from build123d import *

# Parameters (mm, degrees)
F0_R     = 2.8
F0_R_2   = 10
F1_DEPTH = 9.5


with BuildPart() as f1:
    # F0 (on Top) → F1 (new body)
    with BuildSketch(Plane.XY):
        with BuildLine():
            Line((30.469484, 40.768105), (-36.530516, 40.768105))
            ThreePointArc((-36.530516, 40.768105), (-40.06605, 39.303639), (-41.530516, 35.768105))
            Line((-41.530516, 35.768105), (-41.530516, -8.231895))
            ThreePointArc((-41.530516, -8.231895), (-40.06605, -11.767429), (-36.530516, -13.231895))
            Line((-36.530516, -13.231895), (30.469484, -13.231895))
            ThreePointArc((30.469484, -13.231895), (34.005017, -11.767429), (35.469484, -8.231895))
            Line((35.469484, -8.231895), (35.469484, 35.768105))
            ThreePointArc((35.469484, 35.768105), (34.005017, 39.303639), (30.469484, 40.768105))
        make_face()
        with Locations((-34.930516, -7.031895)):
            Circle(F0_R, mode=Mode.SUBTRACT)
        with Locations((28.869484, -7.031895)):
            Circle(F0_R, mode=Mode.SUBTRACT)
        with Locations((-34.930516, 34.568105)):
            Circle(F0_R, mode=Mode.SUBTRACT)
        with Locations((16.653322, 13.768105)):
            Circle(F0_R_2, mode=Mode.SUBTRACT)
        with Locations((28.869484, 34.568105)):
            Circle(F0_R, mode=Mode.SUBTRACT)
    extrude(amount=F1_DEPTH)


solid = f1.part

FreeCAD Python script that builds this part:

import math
import FreeCAD as App
import Part
import Sketcher
from FreeCAD import Vector
Q = App.Units.Quantity

doc = App.newDocument("Part")
body = doc.addObject("PartDesign::Body", "Body")

# Sketch on XY plane
sketch1 = body.newObject("Sketcher::SketchObject", "Sketch")
sketch1.AttachmentSupport = (doc.getObject("XY_Plane"), [""])
sketch1.MapMode = "FlatFace"
sketch1.addGeometry([
    Part.LineSegment(Vector(30.5, 40.8, 0), Vector(-36.5, 40.8, 0)),  # 0
    Part.ArcOfCircle(Part.Circle(Vector(-36.5, 35.8, 0), Vector(0, 0, 1), 5), math.radians(90), math.radians(180)),  # 1
    Part.LineSegment(Vector(-41.5, 35.8, 0), Vector(-41.5, -8.2, 0)),  # 2
    Part.ArcOfCircle(Part.Circle(Vector(-36.5, -8.2, 0), Vector(0, 0, 1), 5), math.radians(180), math.radians(270)),  # 3
    Part.LineSegment(Vector(-36.5, -13.2, 0), Vector(30.5, -13.2, 0)),  # 4
    Part.ArcOfCircle(Part.Circle(Vector(30.5, -8.2, 0), Vector(0, 0, 1), 5), math.radians(-90), math.radians(0)),  # 5
    Part.LineSegment(Vector(35.5, -8.2, 0), Vector(35.5, 35.8, 0)),  # 6
    Part.ArcOfCircle(Part.Circle(Vector(30.5, 35.8, 0), Vector(0, 0, 1), 5), math.radians(0), math.radians(90)),  # 7
    Part.Circle(Vector(-34.9, -7, 0), Vector(0, 0, 1), 2.8),  # 8
    Part.Circle(Vector(28.9, -7, 0), Vector(0, 0, 1), 2.8),  # 9
    Part.Circle(Vector(-34.9, 34.6, 0), Vector(0, 0, 1), 2.8),  # 10
    Part.Circle(Vector(16.7, 13.8, 0), Vector(0, 0, 1), 10),  # 11
    Part.Circle(Vector(28.9, 34.6, 0), Vector(0, 0, 1), 2.8),  # 12
], False)
sketch1.addConstraint([
    Sketcher.Constraint("Tangent", 0, 2, 1, 1),
    Sketcher.Constraint("Tangent", 1, 2, 2, 1),
    Sketcher.Constraint("Tangent", 2, 2, 3, 1),
    Sketcher.Constraint("Tangent", 3, 2, 4, 1),
    Sketcher.Constraint("Tangent", 4, 2, 5, 1),
    Sketcher.Constraint("Tangent", 5, 2, 6, 1),
    Sketcher.Constraint("Tangent", 6, 2, 7, 1),
    Sketcher.Constraint("Tangent", 7, 2, 0, 1),
    Sketcher.Constraint("Horizontal", 0),
    Sketcher.Constraint("Vertical", 2),
    Sketcher.Constraint("Horizontal", 4),
    Sketcher.Constraint("Vertical", 6),
    Sketcher.Constraint("Equal", 1, 3),
    Sketcher.Constraint("Equal", 3, 5),
    Sketcher.Constraint("Equal", 5, 7),
    Sketcher.Constraint("Equal", 8, 9),
    Sketcher.Constraint("Equal", 9, 10),
    Sketcher.Constraint("Equal", 10, 12),
    Sketcher.Constraint("Horizontal", 8, 3, 9, 3),
    Sketcher.Constraint("Horizontal", 10, 3, 12, 3),
    Sketcher.Constraint("Vertical", 8, 3, 10, 3),
    Sketcher.Constraint("Vertical", 9, 3, 12, 3),
    Sketcher.Constraint("Diameter", 11, Q("20 mm")),
    Sketcher.Constraint("Radius", 1, Q("5 mm")),
    Sketcher.Constraint("Diameter", 8, Q("5.6 mm")),
    Sketcher.Constraint("DistanceX", 0, 2, 0, 1, Q("67 mm")),
    Sketcher.Constraint("DistanceY", 2, 2, 2, 1, Q("44 mm")),
    Sketcher.Constraint("DistanceY", 5, 3, 11, 3, Q("21.999999 mm")),
    Sketcher.Constraint("DistanceX", 3, 3, 8, 3, Q("1.6 mm")),
    Sketcher.Constraint("DistanceY", 3, 3, 8, 3, Q("1.2 mm")),
    Sketcher.Constraint("DistanceX", 9, 3, 5, 3, Q("1.599999 mm")),
    Sketcher.Constraint("DistanceY", 10, 3, 1, 3, Q("1.2 mm")),
    Sketcher.Constraint("DistanceX", -1, 1, 11, 3, Q("16.653322 mm")),
    Sketcher.Constraint("DistanceX", 11, 3, 5, 3, Q("13.816161 mm")),
    Sketcher.Constraint("DistanceY", -1, 1, 1, 3, Q("35.768105 mm")),
])
pad1 = body.newObject("PartDesign::Pad", "Pad")
pad1.Profile = sketch1
pad1.Length = 9.5

doc.recompute()
